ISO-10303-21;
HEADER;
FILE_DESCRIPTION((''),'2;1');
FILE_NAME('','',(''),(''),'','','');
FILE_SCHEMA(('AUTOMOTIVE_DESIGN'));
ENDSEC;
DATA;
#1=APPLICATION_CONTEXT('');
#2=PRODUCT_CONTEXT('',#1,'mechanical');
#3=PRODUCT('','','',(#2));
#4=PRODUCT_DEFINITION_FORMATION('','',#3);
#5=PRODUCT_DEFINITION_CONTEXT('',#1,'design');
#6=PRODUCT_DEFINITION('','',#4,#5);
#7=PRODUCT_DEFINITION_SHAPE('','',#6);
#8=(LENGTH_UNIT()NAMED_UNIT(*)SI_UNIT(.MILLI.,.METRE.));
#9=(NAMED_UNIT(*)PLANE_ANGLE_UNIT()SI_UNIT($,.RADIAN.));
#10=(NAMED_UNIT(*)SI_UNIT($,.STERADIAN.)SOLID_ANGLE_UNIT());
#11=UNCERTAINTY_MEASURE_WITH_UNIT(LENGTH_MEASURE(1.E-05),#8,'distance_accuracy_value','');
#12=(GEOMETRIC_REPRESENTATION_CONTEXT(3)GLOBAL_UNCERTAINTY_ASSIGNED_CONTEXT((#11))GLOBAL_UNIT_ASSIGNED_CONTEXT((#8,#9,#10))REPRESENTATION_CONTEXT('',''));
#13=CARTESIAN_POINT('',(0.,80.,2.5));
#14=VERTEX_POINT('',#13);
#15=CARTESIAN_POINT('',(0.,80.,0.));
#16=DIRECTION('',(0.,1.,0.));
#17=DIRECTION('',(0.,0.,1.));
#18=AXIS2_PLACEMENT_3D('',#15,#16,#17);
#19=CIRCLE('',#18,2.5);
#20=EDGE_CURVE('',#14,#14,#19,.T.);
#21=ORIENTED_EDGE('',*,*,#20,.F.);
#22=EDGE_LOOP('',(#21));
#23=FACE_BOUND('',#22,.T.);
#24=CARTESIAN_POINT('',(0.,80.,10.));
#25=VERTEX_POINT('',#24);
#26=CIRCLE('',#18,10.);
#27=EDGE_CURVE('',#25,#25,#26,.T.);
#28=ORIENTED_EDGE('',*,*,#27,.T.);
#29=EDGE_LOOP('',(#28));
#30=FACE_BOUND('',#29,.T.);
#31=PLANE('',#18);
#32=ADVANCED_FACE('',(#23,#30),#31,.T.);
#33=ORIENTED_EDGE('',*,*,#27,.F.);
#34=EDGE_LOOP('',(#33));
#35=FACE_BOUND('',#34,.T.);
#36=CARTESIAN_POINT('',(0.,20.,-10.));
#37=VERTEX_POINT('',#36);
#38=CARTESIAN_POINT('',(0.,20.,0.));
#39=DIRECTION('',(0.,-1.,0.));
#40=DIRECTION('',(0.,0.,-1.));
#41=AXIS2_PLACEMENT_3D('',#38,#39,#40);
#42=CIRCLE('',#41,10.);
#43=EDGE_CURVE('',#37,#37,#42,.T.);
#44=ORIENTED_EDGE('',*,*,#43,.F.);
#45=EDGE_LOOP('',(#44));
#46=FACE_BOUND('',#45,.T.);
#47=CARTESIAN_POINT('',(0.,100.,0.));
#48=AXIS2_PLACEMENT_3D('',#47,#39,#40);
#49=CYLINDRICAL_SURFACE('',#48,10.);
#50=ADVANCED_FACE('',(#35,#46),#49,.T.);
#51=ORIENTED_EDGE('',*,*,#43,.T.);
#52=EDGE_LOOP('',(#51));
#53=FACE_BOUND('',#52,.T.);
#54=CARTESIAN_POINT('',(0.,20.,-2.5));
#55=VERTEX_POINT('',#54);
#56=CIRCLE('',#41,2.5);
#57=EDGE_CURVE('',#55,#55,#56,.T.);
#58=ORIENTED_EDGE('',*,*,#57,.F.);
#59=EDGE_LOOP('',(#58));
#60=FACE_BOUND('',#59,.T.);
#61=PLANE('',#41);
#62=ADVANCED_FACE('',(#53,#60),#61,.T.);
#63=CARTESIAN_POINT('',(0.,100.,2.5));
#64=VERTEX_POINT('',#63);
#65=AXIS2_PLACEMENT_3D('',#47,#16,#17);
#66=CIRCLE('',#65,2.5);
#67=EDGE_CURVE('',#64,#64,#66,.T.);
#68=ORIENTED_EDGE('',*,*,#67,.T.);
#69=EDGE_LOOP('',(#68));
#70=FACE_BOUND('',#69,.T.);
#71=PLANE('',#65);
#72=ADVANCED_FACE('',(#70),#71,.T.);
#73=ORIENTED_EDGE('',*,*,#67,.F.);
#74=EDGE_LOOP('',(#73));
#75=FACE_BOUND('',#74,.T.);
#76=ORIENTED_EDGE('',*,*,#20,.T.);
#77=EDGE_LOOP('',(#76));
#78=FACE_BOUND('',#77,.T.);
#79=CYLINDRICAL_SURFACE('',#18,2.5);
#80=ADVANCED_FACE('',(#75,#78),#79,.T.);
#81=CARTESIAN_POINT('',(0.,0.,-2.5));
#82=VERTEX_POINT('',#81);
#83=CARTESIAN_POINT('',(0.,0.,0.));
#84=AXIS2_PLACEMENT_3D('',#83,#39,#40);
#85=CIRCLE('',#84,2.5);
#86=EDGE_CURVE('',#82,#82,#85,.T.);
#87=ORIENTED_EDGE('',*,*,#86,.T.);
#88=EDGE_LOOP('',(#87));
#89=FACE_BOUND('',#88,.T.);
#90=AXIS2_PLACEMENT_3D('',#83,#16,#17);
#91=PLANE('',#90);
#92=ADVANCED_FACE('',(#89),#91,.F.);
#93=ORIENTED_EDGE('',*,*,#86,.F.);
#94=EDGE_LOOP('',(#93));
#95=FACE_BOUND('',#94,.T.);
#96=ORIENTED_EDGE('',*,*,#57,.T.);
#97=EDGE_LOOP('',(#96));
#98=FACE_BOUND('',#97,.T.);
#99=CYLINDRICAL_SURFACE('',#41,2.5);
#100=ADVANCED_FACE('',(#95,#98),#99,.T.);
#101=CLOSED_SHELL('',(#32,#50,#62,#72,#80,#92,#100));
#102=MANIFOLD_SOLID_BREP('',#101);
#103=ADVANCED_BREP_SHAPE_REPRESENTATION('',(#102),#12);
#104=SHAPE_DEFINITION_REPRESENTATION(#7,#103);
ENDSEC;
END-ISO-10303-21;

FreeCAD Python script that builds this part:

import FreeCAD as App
import Part
import Sketcher

doc = App.newDocument("Part")
body = doc.addObject("PartDesign::Body", "Body")

# Sketch on XZ plane
sketch1 = body.newObject("Sketcher::SketchObject", "Sketch")
sketch1.AttachmentSupport = (doc.getObject("XZ_Plane"), [""])
sketch1.MapMode = "FlatFace"
sketch1.addGeometry(Part.Circle(App.Vector(0, 0, 0), App.Vector(0, 0, 1), 10), False)
sketch1.addConstraint([
    Sketcher.Constraint("Coincident", 0, 3, -1, 1),
    Sketcher.Constraint("Diameter", 0, 20.0),
])
pad1 = body.newObject("PartDesign::Pad", "Pad")
pad1.Profile = sketch1
pad1.Length = 100
pad1.Reversed = True

# Sketch on XZ plane
sketch2 = body.newObject("Sketcher::SketchObject", "Sketch001")
sketch2.AttachmentSupport = (doc.getObject("XZ_Plane"), [""])
sketch2.MapMode = "FlatFace"
sketch2.AttachmentOffset = App.Placement(App.Vector(0, 0, -100), App.Rotation())
sketch2.addGeometry([
    Part.Circle(App.Vector(0, 0, 0), App.Vector(0, 0, 1), 10),
    Part.Circle(App.Vector(0, 0, 0), App.Vector(0, 0, 1), 2.5),
], False)
sketch2.addConstraint([
    Sketcher.Constraint("Coincident", 0, 3, -1, 1),
    Sketcher.Constraint("Coincident", 1, 3, -1, 1),
    Sketcher.Constraint("Diameter", 0, 20.0),
    Sketcher.Constraint("Diameter", 1, 5.0),
])
pocket1 = body.newObject("PartDesign::Pocket", "Pocket")
pocket1.Profile = sketch2
pocket1.Length = 20
pocket1.Reversed = True

# Sketch on XZ plane
sketch3 = body.newObject("Sketcher::SketchObject", "Sketch002")
sketch3.AttachmentSupport = (doc.getObject("XZ_Plane"), [""])
sketch3.MapMode = "FlatFace"
sketch3.addGeometry([
    Part.Circle(App.Vector(0, 0, 0), App.Vector(0, 0, 1), 10),
    Part.Circle(App.Vector(0, 0, 0), App.Vector(0, 0, 1), 2.5),
], False)
sketch3.addConstraint([
    Sketcher.Constraint("Coincident", 0, 3, -1, 1),
    Sketcher.Constraint("Coincident", 1, 3, -1, 1),
    Sketcher.Constraint("Diameter", 0, 20.0),
    Sketcher.Constraint("Diameter", 1, 5.0),
])
pocket2 = body.newObject("PartDesign::Pocket", "Pocket001")
pocket2.Profile = sketch3
pocket2.Length = 20

doc.recompute()
